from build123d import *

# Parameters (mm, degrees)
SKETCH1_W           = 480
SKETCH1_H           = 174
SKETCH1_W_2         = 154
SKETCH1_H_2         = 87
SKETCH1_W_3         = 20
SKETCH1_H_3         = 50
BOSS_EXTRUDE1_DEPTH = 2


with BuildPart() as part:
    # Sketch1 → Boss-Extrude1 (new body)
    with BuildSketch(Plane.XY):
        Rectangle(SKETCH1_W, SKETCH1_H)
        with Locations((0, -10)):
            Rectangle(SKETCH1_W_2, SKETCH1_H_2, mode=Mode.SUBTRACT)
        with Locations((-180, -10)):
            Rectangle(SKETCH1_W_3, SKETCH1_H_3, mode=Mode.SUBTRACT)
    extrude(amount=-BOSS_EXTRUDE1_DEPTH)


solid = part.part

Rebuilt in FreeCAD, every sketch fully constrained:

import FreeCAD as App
import Part
import Sketcher
Q = App.Units.Quantity


def add_polygon(sketch, points):
    """Adds a closed chain of lines whose ends are joined by coincident constraints."""
    first, n = sketch.GeometryCount, len(points)
    for a, b in zip(points, points[1:] + points[:1]):
        sketch.addGeometry(Part.LineSegment(App.Vector(*a, 0), App.Vector(*b, 0)), False)
    for i in range(n):
        sketch.addConstraint(Sketcher.Constraint("Coincident", first + i, 2, first + (i + 1) % n, 1))

doc = App.newDocument("Part")
body = doc.addObject("PartDesign::Body", "Body")

sketch1 = doc.addObject("Sketcher::SketchObject", "Sketch")
body.addObject(sketch1)
sketch1.AttachmentSupport = (doc.XY_Plane, [""])
sketch1.MapMode = "FlatFace"
add_polygon(sketch1, [(-240, 87), (-240, -87), (240, -87), (240, 87)])
add_polygon(sketch1, [(-170, -35), (-190, -35), (-190, 15), (-170, 15)])
add_polygon(sketch1, [(77, -54), (-77, -54), (-77, 34), (77, 34)])
sketch1.addConstraint([
    Sketcher.Constraint("Vertical", 0),
    Sketcher.Constraint("Horizontal", 1),
    Sketcher.Constraint("Vertical", 2),
    Sketcher.Constraint("Horizontal", 3),
    Sketcher.Constraint("Horizontal", 4),
    Sketcher.Constraint("Vertical", 5),
    Sketcher.Constraint("Horizontal", 6),
    Sketcher.Constraint("Vertical", 7),
    Sketcher.Constraint("Horizontal", 8),
    Sketcher.Constraint("Vertical", 9),
    Sketcher.Constraint("Horizontal", 10),
    Sketcher.Constraint("Vertical", 11),
    Sketcher.Constraint("Symmetric", 0, 2, 2, 2, -1, 1),
    Sketcher.Constraint("DistanceX", 1, 1, 1, 2, Q("480 mm")),
    Sketcher.Constraint("DistanceX", 4, 2, 4, 1, Q("20 mm")),
    Sketcher.Constraint("DistanceX", 8, 2, 8, 1, Q("154 mm")),
    Sketcher.Constraint("DistanceY", 0, 2, 0, 1, Q("174 mm")),
    Sketcher.Constraint("DistanceY", 5, 1, 5, 2, Q("50 mm")),
    Sketcher.Constraint("DistanceY", 9, 1, 9, 2, Q("87 mm")),
    Sketcher.Constraint("DistanceX", 4, 2, -1, 1, Q("190 mm")),
    Sketcher.Constraint("DistanceY", 4, 2, -1, 1, Q("35 mm")),
    Sketcher.Constraint("DistanceX", 8, 2, -1, 1, Q("77 mm")),
    Sketcher.Constraint("DistanceY", 8, 2, -1, 1, Q("53.5 mm")),
])
pad1 = doc.addObject("PartDesign::Pad", "Pad")
body.addObject(pad1)
pad1.Profile = sketch1
pad1.Length = 2
pad1.Reversed = True

doc.recompute()
